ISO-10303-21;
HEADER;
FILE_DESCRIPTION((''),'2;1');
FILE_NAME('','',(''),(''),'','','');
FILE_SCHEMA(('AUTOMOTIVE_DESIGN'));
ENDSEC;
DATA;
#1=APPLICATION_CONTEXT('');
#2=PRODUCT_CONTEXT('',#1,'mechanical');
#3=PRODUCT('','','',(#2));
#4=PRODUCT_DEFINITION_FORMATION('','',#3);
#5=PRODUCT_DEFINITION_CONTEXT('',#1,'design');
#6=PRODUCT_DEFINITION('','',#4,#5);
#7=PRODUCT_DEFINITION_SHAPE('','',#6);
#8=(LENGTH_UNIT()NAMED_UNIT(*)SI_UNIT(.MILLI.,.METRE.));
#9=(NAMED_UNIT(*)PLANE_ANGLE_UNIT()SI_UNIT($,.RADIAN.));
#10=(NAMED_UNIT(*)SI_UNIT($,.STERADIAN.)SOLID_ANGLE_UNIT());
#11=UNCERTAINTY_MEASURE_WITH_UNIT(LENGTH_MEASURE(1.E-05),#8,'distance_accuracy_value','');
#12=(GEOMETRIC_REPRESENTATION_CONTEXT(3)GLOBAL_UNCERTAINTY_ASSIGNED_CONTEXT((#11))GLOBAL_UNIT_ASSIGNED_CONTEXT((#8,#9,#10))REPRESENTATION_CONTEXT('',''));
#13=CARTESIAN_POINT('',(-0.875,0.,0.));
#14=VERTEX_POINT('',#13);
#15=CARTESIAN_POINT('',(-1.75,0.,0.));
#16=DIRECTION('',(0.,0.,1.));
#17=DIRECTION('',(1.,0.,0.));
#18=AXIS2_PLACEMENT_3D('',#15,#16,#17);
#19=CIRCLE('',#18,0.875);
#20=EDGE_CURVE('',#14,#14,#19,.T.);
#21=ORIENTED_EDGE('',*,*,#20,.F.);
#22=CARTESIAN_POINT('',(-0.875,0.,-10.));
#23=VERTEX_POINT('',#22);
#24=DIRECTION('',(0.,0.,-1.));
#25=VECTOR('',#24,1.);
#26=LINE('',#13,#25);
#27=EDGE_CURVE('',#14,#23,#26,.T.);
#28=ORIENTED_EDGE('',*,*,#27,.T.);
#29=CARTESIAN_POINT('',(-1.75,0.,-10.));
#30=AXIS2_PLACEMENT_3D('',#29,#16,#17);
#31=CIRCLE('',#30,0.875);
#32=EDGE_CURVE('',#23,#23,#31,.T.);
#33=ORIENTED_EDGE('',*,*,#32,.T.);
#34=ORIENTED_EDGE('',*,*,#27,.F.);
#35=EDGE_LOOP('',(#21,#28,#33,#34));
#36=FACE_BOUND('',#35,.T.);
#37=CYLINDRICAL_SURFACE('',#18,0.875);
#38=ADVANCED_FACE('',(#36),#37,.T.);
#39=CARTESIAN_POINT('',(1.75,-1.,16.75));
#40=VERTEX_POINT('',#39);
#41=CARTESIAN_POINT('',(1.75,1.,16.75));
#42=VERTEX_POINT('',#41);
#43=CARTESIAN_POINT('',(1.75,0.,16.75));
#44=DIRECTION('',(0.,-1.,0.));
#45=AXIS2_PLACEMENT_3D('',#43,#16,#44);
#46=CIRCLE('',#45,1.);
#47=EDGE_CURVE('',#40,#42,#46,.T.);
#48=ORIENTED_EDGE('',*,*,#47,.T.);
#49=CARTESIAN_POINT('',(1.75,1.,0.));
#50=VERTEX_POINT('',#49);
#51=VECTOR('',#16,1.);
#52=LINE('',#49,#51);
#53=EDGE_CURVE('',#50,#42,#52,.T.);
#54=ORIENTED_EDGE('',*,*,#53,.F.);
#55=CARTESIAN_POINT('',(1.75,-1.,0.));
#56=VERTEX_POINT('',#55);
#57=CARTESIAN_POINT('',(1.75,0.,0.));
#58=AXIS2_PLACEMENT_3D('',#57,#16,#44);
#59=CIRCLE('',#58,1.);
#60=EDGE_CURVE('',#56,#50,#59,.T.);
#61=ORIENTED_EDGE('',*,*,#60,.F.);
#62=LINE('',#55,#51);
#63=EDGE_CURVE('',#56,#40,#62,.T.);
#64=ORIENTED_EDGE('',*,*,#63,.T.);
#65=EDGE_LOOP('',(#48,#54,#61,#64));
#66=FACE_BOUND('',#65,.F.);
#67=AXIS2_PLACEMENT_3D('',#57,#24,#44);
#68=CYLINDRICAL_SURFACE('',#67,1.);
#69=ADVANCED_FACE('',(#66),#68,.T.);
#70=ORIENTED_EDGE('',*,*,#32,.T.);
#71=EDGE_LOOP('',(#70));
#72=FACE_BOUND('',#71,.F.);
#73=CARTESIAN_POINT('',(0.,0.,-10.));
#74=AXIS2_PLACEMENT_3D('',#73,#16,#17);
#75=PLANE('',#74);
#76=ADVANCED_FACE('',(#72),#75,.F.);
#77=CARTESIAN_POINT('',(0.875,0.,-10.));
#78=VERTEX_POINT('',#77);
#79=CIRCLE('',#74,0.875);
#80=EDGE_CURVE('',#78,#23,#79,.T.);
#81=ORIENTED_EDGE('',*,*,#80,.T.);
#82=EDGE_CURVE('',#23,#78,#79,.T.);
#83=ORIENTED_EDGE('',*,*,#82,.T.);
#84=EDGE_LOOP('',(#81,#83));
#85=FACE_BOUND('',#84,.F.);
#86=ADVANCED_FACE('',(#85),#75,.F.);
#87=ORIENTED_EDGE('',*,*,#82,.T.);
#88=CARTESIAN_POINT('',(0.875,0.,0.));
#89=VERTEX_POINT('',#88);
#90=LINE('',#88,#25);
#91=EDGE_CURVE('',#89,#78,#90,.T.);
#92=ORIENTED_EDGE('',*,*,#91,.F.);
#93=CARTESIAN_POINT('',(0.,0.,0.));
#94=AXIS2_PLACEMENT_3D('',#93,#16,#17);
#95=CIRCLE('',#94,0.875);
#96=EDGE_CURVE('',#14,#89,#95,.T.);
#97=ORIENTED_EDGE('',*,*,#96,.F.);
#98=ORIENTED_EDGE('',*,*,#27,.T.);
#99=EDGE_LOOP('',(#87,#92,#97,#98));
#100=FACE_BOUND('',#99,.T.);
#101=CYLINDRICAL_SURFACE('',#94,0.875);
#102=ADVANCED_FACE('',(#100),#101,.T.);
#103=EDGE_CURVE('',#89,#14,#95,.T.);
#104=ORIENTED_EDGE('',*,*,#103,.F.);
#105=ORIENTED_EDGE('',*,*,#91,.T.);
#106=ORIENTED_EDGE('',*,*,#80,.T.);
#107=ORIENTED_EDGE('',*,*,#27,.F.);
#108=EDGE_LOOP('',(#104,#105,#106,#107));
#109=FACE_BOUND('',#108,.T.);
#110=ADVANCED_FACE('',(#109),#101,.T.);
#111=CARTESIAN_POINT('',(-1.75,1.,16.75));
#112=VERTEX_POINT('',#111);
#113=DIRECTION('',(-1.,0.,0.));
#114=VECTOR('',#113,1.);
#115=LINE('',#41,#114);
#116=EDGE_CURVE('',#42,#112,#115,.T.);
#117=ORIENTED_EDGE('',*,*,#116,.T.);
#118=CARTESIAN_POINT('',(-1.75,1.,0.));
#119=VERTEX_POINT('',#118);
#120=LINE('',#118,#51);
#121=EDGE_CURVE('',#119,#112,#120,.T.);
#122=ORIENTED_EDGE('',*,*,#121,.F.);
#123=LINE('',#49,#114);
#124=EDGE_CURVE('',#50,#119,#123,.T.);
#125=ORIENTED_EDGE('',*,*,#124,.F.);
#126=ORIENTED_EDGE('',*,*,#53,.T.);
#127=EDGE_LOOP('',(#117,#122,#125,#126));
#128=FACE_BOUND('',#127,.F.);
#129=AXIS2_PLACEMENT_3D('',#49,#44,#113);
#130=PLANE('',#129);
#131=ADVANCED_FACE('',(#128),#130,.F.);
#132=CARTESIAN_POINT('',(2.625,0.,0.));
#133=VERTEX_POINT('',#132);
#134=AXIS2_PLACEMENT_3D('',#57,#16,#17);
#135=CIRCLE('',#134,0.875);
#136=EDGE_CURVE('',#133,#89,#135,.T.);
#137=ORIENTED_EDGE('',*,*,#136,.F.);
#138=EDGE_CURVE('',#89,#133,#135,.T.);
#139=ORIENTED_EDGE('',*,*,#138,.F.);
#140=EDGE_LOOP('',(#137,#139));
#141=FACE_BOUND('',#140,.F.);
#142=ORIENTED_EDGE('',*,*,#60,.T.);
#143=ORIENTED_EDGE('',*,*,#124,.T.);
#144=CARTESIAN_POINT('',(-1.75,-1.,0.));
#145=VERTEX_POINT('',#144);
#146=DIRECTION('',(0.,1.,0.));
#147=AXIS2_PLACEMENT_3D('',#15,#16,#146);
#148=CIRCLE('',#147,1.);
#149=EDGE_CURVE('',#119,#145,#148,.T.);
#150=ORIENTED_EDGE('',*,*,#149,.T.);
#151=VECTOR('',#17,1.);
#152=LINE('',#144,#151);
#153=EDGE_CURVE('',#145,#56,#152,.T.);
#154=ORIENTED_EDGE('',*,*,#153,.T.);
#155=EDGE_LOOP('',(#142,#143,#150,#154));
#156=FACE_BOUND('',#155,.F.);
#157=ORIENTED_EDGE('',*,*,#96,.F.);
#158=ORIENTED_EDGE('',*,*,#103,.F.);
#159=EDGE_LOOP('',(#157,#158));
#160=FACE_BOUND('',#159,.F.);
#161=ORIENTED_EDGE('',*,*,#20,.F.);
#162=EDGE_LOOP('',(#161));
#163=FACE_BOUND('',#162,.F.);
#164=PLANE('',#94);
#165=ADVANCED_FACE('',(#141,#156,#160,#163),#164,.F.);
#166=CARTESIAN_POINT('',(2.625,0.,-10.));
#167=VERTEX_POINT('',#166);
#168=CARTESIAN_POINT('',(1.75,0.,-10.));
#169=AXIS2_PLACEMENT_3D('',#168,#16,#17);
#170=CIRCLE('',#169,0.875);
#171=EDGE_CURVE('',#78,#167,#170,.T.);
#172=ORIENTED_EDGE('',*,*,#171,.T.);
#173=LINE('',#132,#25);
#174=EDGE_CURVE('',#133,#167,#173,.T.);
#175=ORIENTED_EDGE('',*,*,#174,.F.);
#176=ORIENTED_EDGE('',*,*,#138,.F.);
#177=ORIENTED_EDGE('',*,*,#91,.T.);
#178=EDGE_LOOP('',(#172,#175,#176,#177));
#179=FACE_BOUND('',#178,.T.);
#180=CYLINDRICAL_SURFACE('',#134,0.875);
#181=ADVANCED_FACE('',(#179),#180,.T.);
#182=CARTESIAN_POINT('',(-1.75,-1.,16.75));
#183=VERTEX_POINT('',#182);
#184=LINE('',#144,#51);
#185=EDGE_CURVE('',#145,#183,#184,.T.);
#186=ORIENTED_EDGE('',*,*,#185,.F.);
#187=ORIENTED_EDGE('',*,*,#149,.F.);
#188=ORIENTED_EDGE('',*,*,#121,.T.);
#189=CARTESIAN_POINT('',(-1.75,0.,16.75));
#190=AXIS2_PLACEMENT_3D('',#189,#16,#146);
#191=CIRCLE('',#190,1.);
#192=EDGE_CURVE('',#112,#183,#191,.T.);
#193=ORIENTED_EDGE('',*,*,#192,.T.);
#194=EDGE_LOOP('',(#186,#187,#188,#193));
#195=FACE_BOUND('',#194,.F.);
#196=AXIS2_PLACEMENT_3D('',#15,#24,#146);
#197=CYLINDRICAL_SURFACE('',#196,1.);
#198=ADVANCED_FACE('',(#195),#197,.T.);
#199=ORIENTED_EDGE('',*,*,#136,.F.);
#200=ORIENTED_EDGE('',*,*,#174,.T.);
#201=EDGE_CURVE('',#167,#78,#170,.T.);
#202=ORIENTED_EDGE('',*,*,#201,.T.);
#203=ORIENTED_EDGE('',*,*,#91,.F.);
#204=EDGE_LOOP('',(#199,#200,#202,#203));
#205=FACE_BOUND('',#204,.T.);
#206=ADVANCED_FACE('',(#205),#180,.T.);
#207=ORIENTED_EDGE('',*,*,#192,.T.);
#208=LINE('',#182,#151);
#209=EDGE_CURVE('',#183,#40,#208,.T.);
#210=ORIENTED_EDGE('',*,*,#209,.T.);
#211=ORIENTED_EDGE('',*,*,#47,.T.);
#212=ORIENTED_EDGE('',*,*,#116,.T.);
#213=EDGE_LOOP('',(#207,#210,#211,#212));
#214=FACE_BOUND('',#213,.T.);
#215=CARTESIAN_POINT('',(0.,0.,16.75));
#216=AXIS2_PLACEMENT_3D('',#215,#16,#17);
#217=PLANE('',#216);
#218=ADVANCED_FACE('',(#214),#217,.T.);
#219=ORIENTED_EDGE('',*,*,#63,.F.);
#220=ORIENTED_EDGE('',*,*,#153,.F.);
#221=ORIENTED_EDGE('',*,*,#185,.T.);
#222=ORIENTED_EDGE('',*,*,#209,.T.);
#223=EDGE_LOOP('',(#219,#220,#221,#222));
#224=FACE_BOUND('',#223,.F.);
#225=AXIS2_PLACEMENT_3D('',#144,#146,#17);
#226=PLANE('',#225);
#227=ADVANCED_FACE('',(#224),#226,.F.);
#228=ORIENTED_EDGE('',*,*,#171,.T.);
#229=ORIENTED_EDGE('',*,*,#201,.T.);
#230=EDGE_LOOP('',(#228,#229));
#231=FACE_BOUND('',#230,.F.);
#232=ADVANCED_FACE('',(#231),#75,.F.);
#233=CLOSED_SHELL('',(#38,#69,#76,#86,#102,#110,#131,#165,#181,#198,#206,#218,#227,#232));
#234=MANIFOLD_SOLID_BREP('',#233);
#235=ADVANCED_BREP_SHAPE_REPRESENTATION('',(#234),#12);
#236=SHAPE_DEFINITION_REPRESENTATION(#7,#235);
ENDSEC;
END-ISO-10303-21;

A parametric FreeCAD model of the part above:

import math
import FreeCAD as App
import Part
import Sketcher
from FreeCAD import Vector
Q = App.Units.Quantity

doc = App.newDocument("Part")
body = doc.addObject("PartDesign::Body", "Body")

# Sketch on XY plane
sketch1 = body.newObject("Sketcher::SketchObject", "Sketch")
sketch1.AttachmentSupport = (doc.getObject("XY_Plane"), [""])
sketch1.MapMode = "FlatFace"
sketch1.addGeometry([
    Part.ArcOfCircle(Part.Circle(Vector(-1.8, 0, 0), Vector(0, 0, 1), 1), math.radians(90), math.radians(270)),
    Part.LineSegment(Vector(-1.8, -1, 0), Vector(1.8, -1, 0)),
    Part.ArcOfCircle(Part.Circle(Vector(1.8, 0, 0), Vector(0, 0, 1), 1), math.radians(-90), math.radians(90)),
    Part.LineSegment(Vector(1.8, 1, 0), Vector(-1.8, 1, 0)),
], False)
sketch1.addConstraint([
    Sketcher.Constraint("Tangent", 0, 2, 1, 1),
    Sketcher.Constraint("Tangent", 1, 2, 2, 1),
    Sketcher.Constraint("Tangent", 2, 2, 3, 1),
    Sketcher.Constraint("Tangent", 3, 2, 0, 1),
    Sketcher.Constraint("Horizontal", 1),
    Sketcher.Constraint("Horizontal", 3),
    Sketcher.Constraint("Symmetric", 0, 3, 2, 3, -1, 1),
    Sketcher.Constraint("Radius", 0, Q("1 mm")),
    Sketcher.Constraint("DistanceX", 0, 3, -1, 1, Q("1.75 mm")),
])
pad1 = body.newObject("PartDesign::Pad", "Pad")
pad1.Profile = sketch1
pad1.Length = 16.75

# Sketch on XY plane
sketch2 = body.newObject("Sketcher::SketchObject", "Sketch001")
sketch2.AttachmentSupport = (doc.getObject("XY_Plane"), [""])
sketch2.MapMode = "FlatFace"
sketch2.addGeometry([
    Part.ArcOfCircle(Part.Circle(Vector(0, 0, 0), Vector(0, 0, 1), 0.9), math.radians(180), math.radians(360)),
    Part.ArcOfCircle(Part.Circle(Vector(0, 0, 0), Vector(0, 0, 1), 0.9), math.radians(0), math.radians(180)),
    Part.Circle(Vector(-1.8, 0, 0), Vector(0, 0, 1), 0.9),
    Part.Circle(Vector(1.8, 0, 0), Vector(0, 0, 1), 0.9),
], False)
sketch2.addConstraint([
    Sketcher.Constraint("Tangent", 0, 1, 1, 2),
    Sketcher.Constraint("Coincident", 1, 1, 0, 2),
    Sketcher.Constraint("Coincident", 0, 3, -1, 1),
    Sketcher.Constraint("Equal", 1, 2),
    Sketcher.Constraint("Equal", 2, 3),
    Sketcher.Constraint("Symmetric", 2, 3, 3, 3, -1, 1),
    Sketcher.Constraint("PointOnObject", 2, 3, -1),
    Sketcher.Constraint("PointOnObject", 0, 1, -1),
    Sketcher.Constraint("PointOnObject", 1, 1, -1),
    Sketcher.Constraint("Diameter", 2, Q("1.75 mm")),
    Sketcher.Constraint("DistanceX", 2, 3, -1, 1, Q("1.75 mm")),
])
pad2 = body.newObject("PartDesign::Pad", "Pad001")
pad2.Profile = sketch2
pad2.Length = 10
pad2.Reversed = True

doc.recompute()
